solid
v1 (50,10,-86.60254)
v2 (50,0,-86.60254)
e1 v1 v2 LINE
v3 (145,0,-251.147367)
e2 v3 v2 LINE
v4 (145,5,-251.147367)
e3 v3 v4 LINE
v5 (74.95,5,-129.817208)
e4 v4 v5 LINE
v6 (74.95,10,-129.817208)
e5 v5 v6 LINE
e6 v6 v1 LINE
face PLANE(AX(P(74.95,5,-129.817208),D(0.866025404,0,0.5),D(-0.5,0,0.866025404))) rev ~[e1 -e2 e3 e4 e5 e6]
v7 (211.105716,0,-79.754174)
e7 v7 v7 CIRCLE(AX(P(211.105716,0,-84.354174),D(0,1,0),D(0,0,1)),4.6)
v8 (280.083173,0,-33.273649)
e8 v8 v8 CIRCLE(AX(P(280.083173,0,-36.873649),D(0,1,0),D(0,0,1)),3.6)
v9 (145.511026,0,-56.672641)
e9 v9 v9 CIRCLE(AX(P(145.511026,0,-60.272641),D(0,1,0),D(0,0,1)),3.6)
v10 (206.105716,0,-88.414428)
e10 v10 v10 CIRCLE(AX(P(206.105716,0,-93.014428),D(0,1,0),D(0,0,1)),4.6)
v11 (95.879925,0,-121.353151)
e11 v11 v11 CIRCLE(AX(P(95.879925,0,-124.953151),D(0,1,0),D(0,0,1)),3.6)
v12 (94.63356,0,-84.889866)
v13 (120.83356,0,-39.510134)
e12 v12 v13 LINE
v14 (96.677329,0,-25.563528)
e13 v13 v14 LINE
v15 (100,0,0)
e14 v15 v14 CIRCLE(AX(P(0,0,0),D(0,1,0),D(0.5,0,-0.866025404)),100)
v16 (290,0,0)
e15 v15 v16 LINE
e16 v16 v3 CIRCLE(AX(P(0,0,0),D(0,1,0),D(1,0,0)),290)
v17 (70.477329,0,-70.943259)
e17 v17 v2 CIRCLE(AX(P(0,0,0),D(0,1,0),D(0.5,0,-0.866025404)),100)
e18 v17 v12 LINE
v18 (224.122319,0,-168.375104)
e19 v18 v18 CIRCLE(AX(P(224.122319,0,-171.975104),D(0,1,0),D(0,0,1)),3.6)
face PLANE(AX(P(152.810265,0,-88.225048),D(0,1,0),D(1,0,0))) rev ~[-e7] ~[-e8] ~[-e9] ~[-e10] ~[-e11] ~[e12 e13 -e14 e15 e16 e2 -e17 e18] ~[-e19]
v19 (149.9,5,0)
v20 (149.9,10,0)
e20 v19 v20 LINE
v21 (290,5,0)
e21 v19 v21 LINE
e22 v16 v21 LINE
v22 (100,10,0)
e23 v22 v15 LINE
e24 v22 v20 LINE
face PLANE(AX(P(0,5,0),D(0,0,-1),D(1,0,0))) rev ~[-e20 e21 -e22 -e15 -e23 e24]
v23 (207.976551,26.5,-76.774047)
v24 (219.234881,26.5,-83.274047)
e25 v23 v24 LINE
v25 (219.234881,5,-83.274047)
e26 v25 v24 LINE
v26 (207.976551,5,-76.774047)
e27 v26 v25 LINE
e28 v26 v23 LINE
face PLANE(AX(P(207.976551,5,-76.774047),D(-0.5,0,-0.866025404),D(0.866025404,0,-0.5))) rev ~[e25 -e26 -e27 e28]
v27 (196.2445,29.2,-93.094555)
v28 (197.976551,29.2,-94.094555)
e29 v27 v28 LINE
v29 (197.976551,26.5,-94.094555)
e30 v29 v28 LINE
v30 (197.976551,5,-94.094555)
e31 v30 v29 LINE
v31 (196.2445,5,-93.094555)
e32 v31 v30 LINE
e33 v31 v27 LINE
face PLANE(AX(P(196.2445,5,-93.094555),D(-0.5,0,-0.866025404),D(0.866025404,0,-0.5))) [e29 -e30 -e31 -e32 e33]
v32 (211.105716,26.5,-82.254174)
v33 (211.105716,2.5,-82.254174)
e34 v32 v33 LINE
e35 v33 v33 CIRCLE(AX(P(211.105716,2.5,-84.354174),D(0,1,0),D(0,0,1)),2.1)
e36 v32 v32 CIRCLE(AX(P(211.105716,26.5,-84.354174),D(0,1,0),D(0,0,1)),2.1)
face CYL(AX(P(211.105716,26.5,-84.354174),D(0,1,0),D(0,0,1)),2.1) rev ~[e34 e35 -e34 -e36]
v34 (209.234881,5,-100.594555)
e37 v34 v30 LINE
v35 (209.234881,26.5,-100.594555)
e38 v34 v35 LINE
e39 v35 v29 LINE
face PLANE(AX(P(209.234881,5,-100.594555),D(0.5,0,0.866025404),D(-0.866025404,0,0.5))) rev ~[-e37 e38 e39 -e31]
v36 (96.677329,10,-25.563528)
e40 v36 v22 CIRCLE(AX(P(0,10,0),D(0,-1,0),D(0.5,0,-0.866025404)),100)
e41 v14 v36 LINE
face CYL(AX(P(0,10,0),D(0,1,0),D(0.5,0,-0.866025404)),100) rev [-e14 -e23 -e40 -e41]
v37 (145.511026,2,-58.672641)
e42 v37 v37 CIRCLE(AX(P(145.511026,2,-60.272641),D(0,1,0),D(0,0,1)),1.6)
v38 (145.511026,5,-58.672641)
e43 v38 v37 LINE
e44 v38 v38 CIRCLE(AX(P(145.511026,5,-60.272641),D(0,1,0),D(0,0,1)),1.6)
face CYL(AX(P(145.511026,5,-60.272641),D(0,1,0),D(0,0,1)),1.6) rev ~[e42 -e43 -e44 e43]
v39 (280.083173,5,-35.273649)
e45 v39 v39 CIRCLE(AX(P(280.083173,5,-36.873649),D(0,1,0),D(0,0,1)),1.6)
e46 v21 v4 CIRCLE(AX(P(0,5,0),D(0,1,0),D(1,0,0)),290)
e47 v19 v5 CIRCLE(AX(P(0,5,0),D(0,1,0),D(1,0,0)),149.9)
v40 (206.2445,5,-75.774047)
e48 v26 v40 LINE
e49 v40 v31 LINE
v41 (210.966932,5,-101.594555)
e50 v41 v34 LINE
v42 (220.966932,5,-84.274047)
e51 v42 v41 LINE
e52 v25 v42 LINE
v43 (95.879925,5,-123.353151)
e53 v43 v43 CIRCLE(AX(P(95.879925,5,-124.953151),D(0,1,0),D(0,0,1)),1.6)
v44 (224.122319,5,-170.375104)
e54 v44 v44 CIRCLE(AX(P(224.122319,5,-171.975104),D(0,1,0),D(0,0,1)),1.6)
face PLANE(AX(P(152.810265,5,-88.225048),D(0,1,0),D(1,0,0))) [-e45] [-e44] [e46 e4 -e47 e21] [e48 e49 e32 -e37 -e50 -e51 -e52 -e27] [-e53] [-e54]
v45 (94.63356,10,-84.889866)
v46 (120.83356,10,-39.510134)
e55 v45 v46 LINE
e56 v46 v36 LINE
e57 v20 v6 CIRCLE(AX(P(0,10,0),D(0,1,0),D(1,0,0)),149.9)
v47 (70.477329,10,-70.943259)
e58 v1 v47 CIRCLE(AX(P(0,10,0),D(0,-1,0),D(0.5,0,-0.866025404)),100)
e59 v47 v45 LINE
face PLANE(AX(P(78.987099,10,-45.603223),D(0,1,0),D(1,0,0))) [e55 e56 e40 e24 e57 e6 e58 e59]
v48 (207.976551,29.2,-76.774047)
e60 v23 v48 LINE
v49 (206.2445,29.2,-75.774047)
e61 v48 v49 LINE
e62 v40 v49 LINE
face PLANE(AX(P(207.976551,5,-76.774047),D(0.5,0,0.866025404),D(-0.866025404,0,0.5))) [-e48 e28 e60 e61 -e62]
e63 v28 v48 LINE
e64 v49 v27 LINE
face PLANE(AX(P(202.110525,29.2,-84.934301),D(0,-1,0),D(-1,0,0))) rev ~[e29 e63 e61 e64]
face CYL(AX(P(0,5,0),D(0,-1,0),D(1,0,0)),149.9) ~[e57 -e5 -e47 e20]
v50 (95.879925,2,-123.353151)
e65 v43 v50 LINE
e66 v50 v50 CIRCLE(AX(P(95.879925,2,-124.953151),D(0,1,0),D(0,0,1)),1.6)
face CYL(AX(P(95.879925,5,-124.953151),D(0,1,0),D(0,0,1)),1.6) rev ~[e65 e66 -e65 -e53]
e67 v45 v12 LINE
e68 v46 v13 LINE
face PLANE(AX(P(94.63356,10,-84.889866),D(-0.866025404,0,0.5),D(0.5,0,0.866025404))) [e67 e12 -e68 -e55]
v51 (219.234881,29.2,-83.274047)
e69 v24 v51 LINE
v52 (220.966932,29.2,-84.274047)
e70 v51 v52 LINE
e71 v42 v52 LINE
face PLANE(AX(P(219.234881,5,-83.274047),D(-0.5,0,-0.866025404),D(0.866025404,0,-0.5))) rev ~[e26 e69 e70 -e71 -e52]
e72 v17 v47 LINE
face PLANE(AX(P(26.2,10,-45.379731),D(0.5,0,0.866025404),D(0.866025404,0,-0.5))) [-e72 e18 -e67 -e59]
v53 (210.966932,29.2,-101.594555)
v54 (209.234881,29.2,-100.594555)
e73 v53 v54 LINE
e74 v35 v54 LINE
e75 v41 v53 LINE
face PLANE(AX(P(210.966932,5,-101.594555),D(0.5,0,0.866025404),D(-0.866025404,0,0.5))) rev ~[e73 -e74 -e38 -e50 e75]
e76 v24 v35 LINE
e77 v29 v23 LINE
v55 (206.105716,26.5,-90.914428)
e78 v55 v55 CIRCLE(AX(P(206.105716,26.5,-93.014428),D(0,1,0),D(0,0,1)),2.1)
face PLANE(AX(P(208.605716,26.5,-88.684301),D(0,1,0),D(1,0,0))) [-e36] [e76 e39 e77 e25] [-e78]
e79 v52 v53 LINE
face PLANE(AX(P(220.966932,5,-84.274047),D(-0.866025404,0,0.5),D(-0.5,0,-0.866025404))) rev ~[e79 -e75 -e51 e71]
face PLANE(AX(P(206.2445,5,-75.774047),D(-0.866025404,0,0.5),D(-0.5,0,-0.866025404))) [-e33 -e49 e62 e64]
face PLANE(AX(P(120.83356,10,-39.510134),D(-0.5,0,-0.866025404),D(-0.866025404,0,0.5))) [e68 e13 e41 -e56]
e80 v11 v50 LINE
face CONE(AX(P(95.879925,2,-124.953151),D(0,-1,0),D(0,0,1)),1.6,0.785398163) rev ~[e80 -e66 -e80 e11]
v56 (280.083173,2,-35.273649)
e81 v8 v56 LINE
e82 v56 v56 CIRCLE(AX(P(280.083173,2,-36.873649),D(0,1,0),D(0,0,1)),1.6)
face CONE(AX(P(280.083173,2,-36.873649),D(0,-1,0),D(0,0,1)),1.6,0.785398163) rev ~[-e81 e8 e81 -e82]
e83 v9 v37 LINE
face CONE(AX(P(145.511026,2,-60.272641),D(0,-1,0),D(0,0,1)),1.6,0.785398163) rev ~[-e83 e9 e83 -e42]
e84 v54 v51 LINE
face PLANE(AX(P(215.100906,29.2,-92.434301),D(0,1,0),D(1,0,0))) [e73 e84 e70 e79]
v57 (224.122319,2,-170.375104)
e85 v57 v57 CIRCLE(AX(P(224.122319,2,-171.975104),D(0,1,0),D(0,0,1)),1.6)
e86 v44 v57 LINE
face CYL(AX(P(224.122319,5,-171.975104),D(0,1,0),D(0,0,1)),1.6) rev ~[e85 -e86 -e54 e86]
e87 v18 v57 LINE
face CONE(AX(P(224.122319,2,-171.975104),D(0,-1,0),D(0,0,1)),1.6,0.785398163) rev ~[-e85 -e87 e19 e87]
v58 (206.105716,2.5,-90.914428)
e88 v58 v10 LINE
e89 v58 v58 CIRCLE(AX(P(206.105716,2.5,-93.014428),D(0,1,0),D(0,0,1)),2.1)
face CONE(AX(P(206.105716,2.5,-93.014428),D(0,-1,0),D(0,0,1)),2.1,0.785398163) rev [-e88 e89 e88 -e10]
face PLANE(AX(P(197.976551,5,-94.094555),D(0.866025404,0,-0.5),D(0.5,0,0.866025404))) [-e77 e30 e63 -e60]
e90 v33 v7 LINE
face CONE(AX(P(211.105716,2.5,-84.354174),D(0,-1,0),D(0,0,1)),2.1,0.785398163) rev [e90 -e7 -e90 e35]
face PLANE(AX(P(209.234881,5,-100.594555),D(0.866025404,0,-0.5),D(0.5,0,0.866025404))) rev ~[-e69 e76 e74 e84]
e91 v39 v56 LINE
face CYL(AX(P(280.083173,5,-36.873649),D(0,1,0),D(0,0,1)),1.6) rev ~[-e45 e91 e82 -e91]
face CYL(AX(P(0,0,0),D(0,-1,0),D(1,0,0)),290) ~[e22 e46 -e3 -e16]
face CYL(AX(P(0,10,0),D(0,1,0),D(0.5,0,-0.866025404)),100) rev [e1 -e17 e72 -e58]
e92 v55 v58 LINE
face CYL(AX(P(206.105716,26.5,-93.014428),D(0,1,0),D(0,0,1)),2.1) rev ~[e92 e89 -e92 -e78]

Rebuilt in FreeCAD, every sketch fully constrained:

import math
import FreeCAD as App
import Part
import Sketcher
Q = App.Units.Quantity


def edges_at(feature, points):
    """Names of the edges that pass closest to the given points."""
    edges = feature.Shape.Edges
    near = lambda p: min(range(len(edges)), key=lambda i: edges[i].distToShape(Part.Vertex(*p))[0])
    return sorted({f"Edge{near(p) + 1}" for p in points})


def add_polygon(sketch, points):
    """Adds a closed chain of lines whose ends are joined by coincident constraints."""
    first, n = sketch.GeometryCount, len(points)
    for a, b in zip(points, points[1:] + points[:1]):
        sketch.addGeometry(Part.LineSegment(App.Vector(*a, 0), App.Vector(*b, 0)), False)
    for i in range(n):
        sketch.addConstraint(Sketcher.Constraint("Coincident", first + i, 2, first + (i + 1) % n, 1))

doc = App.newDocument("Part")
body = doc.addObject("PartDesign::Body", "Body")

# Sketch on XZ plane
sketch1 = doc.addObject("Sketcher::SketchObject", "Sketch")
body.addObject(sketch1)
sketch1.AttachmentSupport = (doc.XZ_Plane, [""])
sketch1.MapMode = "FlatFace"
sketch1.addGeometry([
    Part.LineSegment(App.Vector(0, 0, 0), App.Vector(290, 0, 0)),
    Part.ArcOfCircle(Part.Circle(App.Vector(0, 0, 0), App.Vector(0, 0, 1), 290), math.radians(-60), math.radians(0)),
    Part.LineSegment(App.Vector(145, -251, 0), App.Vector(0, 0, 0)),
], False)
sketch1.addConstraint([
    Sketcher.Constraint("Coincident", 0, 2, 1, 2),
    Sketcher.Constraint("Coincident", 1, 1, 2, 1),
    Sketcher.Constraint("Coincident", 2, 2, 0, 1),
    Sketcher.Constraint("Horizontal", 0),
    Sketcher.Constraint("Coincident", 1, 3, -1, 1),
    Sketcher.Constraint("Coincident", 2, 2, -1, 1),
    Sketcher.Constraint("Radius", 1, Q("290 mm")),
    Sketcher.Constraint("Angle", 2, Q("120 deg")),
])
pad1 = doc.addObject("PartDesign::Pad", "Pad")
body.addObject(pad1)
pad1.Profile = sketch1
pad1.Length = 5
pad1.Reversed = True

# Sketch on XZ plane
sketch2 = doc.addObject("Sketcher::SketchObject", "Sketch001")
body.addObject(sketch2)
sketch2.AttachmentSupport = (doc.XZ_Plane, [""])
sketch2.MapMode = "FlatFace"
sketch2.AttachmentOffset = App.Placement(App.Vector(0, 0, -5), App.Rotation())
sketch2.addGeometry([
    Part.LineSegment(App.Vector(0, 0, 0), App.Vector(150, 0, 0)),
    Part.ArcOfCircle(Part.Circle(App.Vector(0, 0, 0), App.Vector(0, 0, 1), 150), math.radians(-60), math.radians(0)),
    Part.LineSegment(App.Vector(75, -130, 0), App.Vector(0, 0, 0)),
], False)
sketch2.addConstraint([
    Sketcher.Constraint("Coincident", 0, 2, 1, 2),
    Sketcher.Constraint("Coincident", 1, 1, 2, 1),
    Sketcher.Constraint("Coincident", 2, 2, 0, 1),
    Sketcher.Constraint("Horizontal", 0),
    Sketcher.Constraint("Coincident", 1, 3, -1, 1),
    Sketcher.Constraint("Coincident", 2, 2, -1, 1),
    Sketcher.Constraint("Radius", 1, Q("149.9 mm")),
    Sketcher.Constraint("Angle", 2, Q("120 deg")),
])
pad2 = doc.addObject("PartDesign::Pad", "Pad001")
body.addObject(pad2)
pad2.Profile = sketch2
pad2.Length = 5
pad2.Reversed = True

# Sketch on XZ plane
sketch3 = doc.addObject("Sketcher::SketchObject", "Sketch002")
body.addObject(sketch3)
sketch3.AttachmentSupport = (doc.XZ_Plane, [""])
sketch3.MapMode = "FlatFace"
sketch3.AttachmentOffset = App.Placement(App.Vector(0, 0, -10), App.Rotation())
add_polygon(sketch3, [(95, -85), (26, -45), (0, 0), (52, 0), (121, -40)])  # lines 0-4
sketch3.addConstraint([
    Sketcher.Constraint("Horizontal", 2),
    Sketcher.Constraint("Coincident", 1, 2, -1, 1),
    Sketcher.Constraint("Parallel", 0, 3),
    Sketcher.Constraint("Perpendicular", 3, 4),
    Sketcher.Constraint("Equal", 0, 3),
    Sketcher.Constraint("Equal", 1, 4),
    Sketcher.Constraint("Angle", 0, Q("150 deg")),
    Sketcher.Constraint("DistanceX", 2, 1, 2, 2, Q("52.4 mm")),
    Sketcher.Constraint("Distance", 0, Q("79.020269 mm")),
])
pocket1 = doc.addObject("PartDesign::Pocket", "Pocket")
body.addObject(pocket1)
pocket1.Profile = sketch3
pocket1.Type = "ThroughAll"
pocket1.Reversed = True

# Sketch on XZ plane
sketch4 = doc.addObject("Sketcher::SketchObject", "Sketch003")
body.addObject(sketch4)
sketch4.AttachmentSupport = (doc.XZ_Plane, [""])
sketch4.MapMode = "FlatFace"
sketch4.AttachmentOffset = App.Placement(App.Vector(0, 0, -10), App.Rotation())
sketch4.addGeometry([
    Part.LineSegment(App.Vector(0, 0, 0), App.Vector(100, 0, 0)),
    Part.ArcOfCircle(Part.Circle(App.Vector(0, 0, 0), App.Vector(0, 0, 1), 100), math.radians(-60), math.radians(0)),
    Part.LineSegment(App.Vector(50, -87, 0), App.Vector(0, 0, 0)),
], False)
sketch4.addConstraint([
    Sketcher.Constraint("Coincident", 0, 2, 1, 2),
    Sketcher.Constraint("Coincident", 1, 1, 2, 1),
    Sketcher.Constraint("Coincident", 2, 2, 0, 1),
    Sketcher.Constraint("Horizontal", 0),
    Sketcher.Constraint("Coincident", 1, 3, -1, 1),
    Sketcher.Constraint("Coincident", 2, 2, -1, 1),
    Sketcher.Constraint("Radius", 1, Q("100 mm")),
    Sketcher.Constraint("Angle", 2, Q("120 deg")),
])
pocket2 = doc.addObject("PartDesign::Pocket", "Pocket001")
body.addObject(pocket2)
pocket2.Profile = sketch4
pocket2.Type = "ThroughAll"
pocket2.Reversed = True

# Sketch on XZ plane
sketch5 = doc.addObject("Sketcher::SketchObject", "Sketch004")
body.addObject(sketch5)
sketch5.AttachmentSupport = (doc.XZ_Plane, [""])
sketch5.MapMode = "FlatFace"
sketch5.AttachmentOffset = App.Placement(App.Vector(0, 0, -5), App.Rotation())
sketch5.addGeometry([
    Part.Circle(App.Vector(95.9, -125, 0), App.Vector(0, 0, 1), 1.6),
    Part.Circle(App.Vector(224.1, -172, 0), App.Vector(0, 0, 1), 1.6),
    Part.Circle(App.Vector(145.5, -60.3, 0), App.Vector(0, 0, 1), 1.6),
    Part.Circle(App.Vector(280.1, -36.9, 0), App.Vector(0, 0, 1), 1.6),
], False)
sketch5.addConstraint([
    Sketcher.Constraint("Equal", 0, 1),
    Sketcher.Constraint("Equal", 1, 2),
    Sketcher.Constraint("Equal", 2, 3),
    Sketcher.Constraint("Diameter", 0, Q("3.2 mm")),
    Sketcher.Constraint("DistanceX", 0, 3, 2, 3, Q("49.631101 mm")),
    Sketcher.Constraint("DistanceY", 0, 3, 3, 3, Q("88.079502 mm")),
    Sketcher.Constraint("DistanceY", 0, 3, -1, 1, Q("124.953151 mm")),
    Sketcher.Constraint("DistanceX", -1, 1, 1, 3, Q("224.122319 mm")),
    Sketcher.Constraint("DistanceY", 2, 3, -1, 1, Q("60.272641 mm")),
    Sketcher.Constraint("DistanceX", 0, 3, 3, 3, Q("184.203248 mm")),
    Sketcher.Constraint("DistanceX", -1, 1, 0, 3, Q("95.879925 mm")),
    Sketcher.Constraint("DistanceY", 1, 3, -1, 1, Q("171.975104 mm")),
])
pocket3 = doc.addObject("PartDesign::Pocket", "Pocket002")
body.addObject(pocket3)
pocket3.Profile = sketch5
pocket3.Type = "ThroughAll"
pocket3.Reversed = True
doc.recompute()

chamfer = doc.addObject("PartDesign::Chamfer", "Chamfer")
body.addObject(chamfer)
chamfer.Base = (pocket3, edges_at(pocket3, [
    (95.88, 0, -126.553),
    (224.122, 0, -173.575),
    (145.511, 0, -61.873),
    (280.083, 0, -38.474),
]))
chamfer.Size = 2

# Sketch on XZ plane
sketch6 = doc.addObject("Sketcher::SketchObject", "Sketch005")
body.addObject(sketch6)
sketch6.AttachmentSupport = (doc.XZ_Plane, [""])
sketch6.MapMode = "FlatFace"
sketch6.AttachmentOffset = App.Placement(App.Vector(0, 0, -5), App.Rotation())
add_polygon(sketch6, [(208, -77), (219, -83), (209, -101), (198, -94)])  # lines 0-3
sketch6.addConstraint([
    Sketcher.Constraint("Perpendicular", 0, 1),
    Sketcher.Constraint("Perpendicular", 1, 2),
    Sketcher.Constraint("Perpendicular", 2, 3),
    Sketcher.Constraint("Angle", 0, Q("-30 deg")),
    Sketcher.Constraint("Distance", 0, Q("13 mm")),
    Sketcher.Constraint("Distance", 1, Q("20 mm")),
    Sketcher.Constraint("DistanceX", -1, 1, 0, 2, Q("219.234881 mm")),
    Sketcher.Constraint("DistanceY", 0, 2, -1, 1, Q("83.274047 mm")),
])
pad3 = doc.addObject("PartDesign::Pad", "Pad002")
body.addObject(pad3)
pad3.Profile = sketch6
pad3.Length = 21.5
pad3.Reversed = True

# Sketch on XZ plane
sketch7 = doc.addObject("Sketcher::SketchObject", "Sketch006")
body.addObject(sketch7)
sketch7.AttachmentSupport = (doc.XZ_Plane, [""])
sketch7.MapMode = "FlatFace"
sketch7.AttachmentOffset = App.Placement(App.Vector(0, 0, -26.5), App.Rotation())
sketch7.addGeometry([
    Part.Circle(App.Vector(206.1, -93, 0), App.Vector(0, 0, 1), 2.1),
    Part.Circle(App.Vector(211.1, -84.4, 0), App.Vector(0, 0, 1), 2.1),
], False)
sketch7.addConstraint([
    Sketcher.Constraint("Equal", 0, 1),
    Sketcher.Constraint("Diameter", 0, Q("4.2 mm")),
    Sketcher.Constraint("DistanceX", 0, 3, 1, 3, Q("5 mm")),
    Sketcher.Constraint("DistanceY", 0, 3, -1, 1, Q("93.014428 mm")),
    Sketcher.Constraint("DistanceX", -1, 1, 0, 3, Q("206.105716 mm")),
    Sketcher.Constraint("DistanceY", 1, 3, -1, 1, Q("84.354174 mm")),
])
pocket4 = doc.addObject("PartDesign::Pocket", "Pocket003")
body.addObject(pocket4)
pocket4.Profile = sketch7
pocket4.Type = "ThroughAll"
pocket4.Reversed = True

# Sketch on XZ plane
sketch8 = doc.addObject("Sketcher::SketchObject", "Sketch007")
body.addObject(sketch8)
sketch8.AttachmentSupport = (doc.XZ_Plane, [""])
sketch8.MapMode = "FlatFace"
sketch8.AttachmentOffset = App.Placement(App.Vector(0, 0, -5), App.Rotation())
add_polygon(sketch8, [(208, -76.8), (198, -94.1), (196.2, -93.1), (206.2, -75.8)])  # lines 0-3
add_polygon(sketch8, [(219.2, -83.3), (221, -84.3), (211, -101.6), (209.2, -100.6)])  # lines 4-7
sketch8.addConstraint([
    Sketcher.Constraint("Perpendicular", 0, 1),
    Sketcher.Constraint("Perpendicular", 1, 2),
    Sketcher.Constraint("Perpendicular", 2, 3),
    Sketcher.Constraint("Parallel", 3, 4),
    Sketcher.Constraint("Perpendicular", 4, 5),
    Sketcher.Constraint("Perpendicular", 5, 6),
    Sketcher.Constraint("Perpendicular", 6, 7),
    Sketcher.Constraint("Equal", 3, 4),
    Sketcher.Constraint("Equal", 2, 5),
    Sketcher.Constraint("Angle", 0, Q("-120 deg")),
    Sketcher.Constraint("Distance", 0, Q("20 mm")),
    Sketcher.Constraint("Distance", 1, Q("2 mm")),
    Sketcher.Constraint("DistanceY", 4, 2, 3, 2, Q("7.5 mm")),
    Sketcher.Constraint("DistanceX", -1, 1, 1, 2, Q("196.2445 mm")),
    Sketcher.Constraint("DistanceX", -1, 1, 4, 2, Q("220.966932 mm")),
    Sketcher.Constraint("DistanceY", 0, 2, -1, 1, Q("94.094555 mm")),
])
pad4 = doc.addObject("PartDesign::Pad", "Pad003")
body.addObject(pad4)
pad4.Profile = sketch8
pad4.Length = 24.2
pad4.Reversed = True
doc.recompute()

chamfer2 = doc.addObject("PartDesign::Chamfer", "Chamfer001")
body.addObject(chamfer2)
chamfer2.Base = (pad4, edges_at(pad4, [(206.106, 0, -95.114), (211.106, 0, -86.454)]))
chamfer2.Size = 2.5

doc.recompute()
